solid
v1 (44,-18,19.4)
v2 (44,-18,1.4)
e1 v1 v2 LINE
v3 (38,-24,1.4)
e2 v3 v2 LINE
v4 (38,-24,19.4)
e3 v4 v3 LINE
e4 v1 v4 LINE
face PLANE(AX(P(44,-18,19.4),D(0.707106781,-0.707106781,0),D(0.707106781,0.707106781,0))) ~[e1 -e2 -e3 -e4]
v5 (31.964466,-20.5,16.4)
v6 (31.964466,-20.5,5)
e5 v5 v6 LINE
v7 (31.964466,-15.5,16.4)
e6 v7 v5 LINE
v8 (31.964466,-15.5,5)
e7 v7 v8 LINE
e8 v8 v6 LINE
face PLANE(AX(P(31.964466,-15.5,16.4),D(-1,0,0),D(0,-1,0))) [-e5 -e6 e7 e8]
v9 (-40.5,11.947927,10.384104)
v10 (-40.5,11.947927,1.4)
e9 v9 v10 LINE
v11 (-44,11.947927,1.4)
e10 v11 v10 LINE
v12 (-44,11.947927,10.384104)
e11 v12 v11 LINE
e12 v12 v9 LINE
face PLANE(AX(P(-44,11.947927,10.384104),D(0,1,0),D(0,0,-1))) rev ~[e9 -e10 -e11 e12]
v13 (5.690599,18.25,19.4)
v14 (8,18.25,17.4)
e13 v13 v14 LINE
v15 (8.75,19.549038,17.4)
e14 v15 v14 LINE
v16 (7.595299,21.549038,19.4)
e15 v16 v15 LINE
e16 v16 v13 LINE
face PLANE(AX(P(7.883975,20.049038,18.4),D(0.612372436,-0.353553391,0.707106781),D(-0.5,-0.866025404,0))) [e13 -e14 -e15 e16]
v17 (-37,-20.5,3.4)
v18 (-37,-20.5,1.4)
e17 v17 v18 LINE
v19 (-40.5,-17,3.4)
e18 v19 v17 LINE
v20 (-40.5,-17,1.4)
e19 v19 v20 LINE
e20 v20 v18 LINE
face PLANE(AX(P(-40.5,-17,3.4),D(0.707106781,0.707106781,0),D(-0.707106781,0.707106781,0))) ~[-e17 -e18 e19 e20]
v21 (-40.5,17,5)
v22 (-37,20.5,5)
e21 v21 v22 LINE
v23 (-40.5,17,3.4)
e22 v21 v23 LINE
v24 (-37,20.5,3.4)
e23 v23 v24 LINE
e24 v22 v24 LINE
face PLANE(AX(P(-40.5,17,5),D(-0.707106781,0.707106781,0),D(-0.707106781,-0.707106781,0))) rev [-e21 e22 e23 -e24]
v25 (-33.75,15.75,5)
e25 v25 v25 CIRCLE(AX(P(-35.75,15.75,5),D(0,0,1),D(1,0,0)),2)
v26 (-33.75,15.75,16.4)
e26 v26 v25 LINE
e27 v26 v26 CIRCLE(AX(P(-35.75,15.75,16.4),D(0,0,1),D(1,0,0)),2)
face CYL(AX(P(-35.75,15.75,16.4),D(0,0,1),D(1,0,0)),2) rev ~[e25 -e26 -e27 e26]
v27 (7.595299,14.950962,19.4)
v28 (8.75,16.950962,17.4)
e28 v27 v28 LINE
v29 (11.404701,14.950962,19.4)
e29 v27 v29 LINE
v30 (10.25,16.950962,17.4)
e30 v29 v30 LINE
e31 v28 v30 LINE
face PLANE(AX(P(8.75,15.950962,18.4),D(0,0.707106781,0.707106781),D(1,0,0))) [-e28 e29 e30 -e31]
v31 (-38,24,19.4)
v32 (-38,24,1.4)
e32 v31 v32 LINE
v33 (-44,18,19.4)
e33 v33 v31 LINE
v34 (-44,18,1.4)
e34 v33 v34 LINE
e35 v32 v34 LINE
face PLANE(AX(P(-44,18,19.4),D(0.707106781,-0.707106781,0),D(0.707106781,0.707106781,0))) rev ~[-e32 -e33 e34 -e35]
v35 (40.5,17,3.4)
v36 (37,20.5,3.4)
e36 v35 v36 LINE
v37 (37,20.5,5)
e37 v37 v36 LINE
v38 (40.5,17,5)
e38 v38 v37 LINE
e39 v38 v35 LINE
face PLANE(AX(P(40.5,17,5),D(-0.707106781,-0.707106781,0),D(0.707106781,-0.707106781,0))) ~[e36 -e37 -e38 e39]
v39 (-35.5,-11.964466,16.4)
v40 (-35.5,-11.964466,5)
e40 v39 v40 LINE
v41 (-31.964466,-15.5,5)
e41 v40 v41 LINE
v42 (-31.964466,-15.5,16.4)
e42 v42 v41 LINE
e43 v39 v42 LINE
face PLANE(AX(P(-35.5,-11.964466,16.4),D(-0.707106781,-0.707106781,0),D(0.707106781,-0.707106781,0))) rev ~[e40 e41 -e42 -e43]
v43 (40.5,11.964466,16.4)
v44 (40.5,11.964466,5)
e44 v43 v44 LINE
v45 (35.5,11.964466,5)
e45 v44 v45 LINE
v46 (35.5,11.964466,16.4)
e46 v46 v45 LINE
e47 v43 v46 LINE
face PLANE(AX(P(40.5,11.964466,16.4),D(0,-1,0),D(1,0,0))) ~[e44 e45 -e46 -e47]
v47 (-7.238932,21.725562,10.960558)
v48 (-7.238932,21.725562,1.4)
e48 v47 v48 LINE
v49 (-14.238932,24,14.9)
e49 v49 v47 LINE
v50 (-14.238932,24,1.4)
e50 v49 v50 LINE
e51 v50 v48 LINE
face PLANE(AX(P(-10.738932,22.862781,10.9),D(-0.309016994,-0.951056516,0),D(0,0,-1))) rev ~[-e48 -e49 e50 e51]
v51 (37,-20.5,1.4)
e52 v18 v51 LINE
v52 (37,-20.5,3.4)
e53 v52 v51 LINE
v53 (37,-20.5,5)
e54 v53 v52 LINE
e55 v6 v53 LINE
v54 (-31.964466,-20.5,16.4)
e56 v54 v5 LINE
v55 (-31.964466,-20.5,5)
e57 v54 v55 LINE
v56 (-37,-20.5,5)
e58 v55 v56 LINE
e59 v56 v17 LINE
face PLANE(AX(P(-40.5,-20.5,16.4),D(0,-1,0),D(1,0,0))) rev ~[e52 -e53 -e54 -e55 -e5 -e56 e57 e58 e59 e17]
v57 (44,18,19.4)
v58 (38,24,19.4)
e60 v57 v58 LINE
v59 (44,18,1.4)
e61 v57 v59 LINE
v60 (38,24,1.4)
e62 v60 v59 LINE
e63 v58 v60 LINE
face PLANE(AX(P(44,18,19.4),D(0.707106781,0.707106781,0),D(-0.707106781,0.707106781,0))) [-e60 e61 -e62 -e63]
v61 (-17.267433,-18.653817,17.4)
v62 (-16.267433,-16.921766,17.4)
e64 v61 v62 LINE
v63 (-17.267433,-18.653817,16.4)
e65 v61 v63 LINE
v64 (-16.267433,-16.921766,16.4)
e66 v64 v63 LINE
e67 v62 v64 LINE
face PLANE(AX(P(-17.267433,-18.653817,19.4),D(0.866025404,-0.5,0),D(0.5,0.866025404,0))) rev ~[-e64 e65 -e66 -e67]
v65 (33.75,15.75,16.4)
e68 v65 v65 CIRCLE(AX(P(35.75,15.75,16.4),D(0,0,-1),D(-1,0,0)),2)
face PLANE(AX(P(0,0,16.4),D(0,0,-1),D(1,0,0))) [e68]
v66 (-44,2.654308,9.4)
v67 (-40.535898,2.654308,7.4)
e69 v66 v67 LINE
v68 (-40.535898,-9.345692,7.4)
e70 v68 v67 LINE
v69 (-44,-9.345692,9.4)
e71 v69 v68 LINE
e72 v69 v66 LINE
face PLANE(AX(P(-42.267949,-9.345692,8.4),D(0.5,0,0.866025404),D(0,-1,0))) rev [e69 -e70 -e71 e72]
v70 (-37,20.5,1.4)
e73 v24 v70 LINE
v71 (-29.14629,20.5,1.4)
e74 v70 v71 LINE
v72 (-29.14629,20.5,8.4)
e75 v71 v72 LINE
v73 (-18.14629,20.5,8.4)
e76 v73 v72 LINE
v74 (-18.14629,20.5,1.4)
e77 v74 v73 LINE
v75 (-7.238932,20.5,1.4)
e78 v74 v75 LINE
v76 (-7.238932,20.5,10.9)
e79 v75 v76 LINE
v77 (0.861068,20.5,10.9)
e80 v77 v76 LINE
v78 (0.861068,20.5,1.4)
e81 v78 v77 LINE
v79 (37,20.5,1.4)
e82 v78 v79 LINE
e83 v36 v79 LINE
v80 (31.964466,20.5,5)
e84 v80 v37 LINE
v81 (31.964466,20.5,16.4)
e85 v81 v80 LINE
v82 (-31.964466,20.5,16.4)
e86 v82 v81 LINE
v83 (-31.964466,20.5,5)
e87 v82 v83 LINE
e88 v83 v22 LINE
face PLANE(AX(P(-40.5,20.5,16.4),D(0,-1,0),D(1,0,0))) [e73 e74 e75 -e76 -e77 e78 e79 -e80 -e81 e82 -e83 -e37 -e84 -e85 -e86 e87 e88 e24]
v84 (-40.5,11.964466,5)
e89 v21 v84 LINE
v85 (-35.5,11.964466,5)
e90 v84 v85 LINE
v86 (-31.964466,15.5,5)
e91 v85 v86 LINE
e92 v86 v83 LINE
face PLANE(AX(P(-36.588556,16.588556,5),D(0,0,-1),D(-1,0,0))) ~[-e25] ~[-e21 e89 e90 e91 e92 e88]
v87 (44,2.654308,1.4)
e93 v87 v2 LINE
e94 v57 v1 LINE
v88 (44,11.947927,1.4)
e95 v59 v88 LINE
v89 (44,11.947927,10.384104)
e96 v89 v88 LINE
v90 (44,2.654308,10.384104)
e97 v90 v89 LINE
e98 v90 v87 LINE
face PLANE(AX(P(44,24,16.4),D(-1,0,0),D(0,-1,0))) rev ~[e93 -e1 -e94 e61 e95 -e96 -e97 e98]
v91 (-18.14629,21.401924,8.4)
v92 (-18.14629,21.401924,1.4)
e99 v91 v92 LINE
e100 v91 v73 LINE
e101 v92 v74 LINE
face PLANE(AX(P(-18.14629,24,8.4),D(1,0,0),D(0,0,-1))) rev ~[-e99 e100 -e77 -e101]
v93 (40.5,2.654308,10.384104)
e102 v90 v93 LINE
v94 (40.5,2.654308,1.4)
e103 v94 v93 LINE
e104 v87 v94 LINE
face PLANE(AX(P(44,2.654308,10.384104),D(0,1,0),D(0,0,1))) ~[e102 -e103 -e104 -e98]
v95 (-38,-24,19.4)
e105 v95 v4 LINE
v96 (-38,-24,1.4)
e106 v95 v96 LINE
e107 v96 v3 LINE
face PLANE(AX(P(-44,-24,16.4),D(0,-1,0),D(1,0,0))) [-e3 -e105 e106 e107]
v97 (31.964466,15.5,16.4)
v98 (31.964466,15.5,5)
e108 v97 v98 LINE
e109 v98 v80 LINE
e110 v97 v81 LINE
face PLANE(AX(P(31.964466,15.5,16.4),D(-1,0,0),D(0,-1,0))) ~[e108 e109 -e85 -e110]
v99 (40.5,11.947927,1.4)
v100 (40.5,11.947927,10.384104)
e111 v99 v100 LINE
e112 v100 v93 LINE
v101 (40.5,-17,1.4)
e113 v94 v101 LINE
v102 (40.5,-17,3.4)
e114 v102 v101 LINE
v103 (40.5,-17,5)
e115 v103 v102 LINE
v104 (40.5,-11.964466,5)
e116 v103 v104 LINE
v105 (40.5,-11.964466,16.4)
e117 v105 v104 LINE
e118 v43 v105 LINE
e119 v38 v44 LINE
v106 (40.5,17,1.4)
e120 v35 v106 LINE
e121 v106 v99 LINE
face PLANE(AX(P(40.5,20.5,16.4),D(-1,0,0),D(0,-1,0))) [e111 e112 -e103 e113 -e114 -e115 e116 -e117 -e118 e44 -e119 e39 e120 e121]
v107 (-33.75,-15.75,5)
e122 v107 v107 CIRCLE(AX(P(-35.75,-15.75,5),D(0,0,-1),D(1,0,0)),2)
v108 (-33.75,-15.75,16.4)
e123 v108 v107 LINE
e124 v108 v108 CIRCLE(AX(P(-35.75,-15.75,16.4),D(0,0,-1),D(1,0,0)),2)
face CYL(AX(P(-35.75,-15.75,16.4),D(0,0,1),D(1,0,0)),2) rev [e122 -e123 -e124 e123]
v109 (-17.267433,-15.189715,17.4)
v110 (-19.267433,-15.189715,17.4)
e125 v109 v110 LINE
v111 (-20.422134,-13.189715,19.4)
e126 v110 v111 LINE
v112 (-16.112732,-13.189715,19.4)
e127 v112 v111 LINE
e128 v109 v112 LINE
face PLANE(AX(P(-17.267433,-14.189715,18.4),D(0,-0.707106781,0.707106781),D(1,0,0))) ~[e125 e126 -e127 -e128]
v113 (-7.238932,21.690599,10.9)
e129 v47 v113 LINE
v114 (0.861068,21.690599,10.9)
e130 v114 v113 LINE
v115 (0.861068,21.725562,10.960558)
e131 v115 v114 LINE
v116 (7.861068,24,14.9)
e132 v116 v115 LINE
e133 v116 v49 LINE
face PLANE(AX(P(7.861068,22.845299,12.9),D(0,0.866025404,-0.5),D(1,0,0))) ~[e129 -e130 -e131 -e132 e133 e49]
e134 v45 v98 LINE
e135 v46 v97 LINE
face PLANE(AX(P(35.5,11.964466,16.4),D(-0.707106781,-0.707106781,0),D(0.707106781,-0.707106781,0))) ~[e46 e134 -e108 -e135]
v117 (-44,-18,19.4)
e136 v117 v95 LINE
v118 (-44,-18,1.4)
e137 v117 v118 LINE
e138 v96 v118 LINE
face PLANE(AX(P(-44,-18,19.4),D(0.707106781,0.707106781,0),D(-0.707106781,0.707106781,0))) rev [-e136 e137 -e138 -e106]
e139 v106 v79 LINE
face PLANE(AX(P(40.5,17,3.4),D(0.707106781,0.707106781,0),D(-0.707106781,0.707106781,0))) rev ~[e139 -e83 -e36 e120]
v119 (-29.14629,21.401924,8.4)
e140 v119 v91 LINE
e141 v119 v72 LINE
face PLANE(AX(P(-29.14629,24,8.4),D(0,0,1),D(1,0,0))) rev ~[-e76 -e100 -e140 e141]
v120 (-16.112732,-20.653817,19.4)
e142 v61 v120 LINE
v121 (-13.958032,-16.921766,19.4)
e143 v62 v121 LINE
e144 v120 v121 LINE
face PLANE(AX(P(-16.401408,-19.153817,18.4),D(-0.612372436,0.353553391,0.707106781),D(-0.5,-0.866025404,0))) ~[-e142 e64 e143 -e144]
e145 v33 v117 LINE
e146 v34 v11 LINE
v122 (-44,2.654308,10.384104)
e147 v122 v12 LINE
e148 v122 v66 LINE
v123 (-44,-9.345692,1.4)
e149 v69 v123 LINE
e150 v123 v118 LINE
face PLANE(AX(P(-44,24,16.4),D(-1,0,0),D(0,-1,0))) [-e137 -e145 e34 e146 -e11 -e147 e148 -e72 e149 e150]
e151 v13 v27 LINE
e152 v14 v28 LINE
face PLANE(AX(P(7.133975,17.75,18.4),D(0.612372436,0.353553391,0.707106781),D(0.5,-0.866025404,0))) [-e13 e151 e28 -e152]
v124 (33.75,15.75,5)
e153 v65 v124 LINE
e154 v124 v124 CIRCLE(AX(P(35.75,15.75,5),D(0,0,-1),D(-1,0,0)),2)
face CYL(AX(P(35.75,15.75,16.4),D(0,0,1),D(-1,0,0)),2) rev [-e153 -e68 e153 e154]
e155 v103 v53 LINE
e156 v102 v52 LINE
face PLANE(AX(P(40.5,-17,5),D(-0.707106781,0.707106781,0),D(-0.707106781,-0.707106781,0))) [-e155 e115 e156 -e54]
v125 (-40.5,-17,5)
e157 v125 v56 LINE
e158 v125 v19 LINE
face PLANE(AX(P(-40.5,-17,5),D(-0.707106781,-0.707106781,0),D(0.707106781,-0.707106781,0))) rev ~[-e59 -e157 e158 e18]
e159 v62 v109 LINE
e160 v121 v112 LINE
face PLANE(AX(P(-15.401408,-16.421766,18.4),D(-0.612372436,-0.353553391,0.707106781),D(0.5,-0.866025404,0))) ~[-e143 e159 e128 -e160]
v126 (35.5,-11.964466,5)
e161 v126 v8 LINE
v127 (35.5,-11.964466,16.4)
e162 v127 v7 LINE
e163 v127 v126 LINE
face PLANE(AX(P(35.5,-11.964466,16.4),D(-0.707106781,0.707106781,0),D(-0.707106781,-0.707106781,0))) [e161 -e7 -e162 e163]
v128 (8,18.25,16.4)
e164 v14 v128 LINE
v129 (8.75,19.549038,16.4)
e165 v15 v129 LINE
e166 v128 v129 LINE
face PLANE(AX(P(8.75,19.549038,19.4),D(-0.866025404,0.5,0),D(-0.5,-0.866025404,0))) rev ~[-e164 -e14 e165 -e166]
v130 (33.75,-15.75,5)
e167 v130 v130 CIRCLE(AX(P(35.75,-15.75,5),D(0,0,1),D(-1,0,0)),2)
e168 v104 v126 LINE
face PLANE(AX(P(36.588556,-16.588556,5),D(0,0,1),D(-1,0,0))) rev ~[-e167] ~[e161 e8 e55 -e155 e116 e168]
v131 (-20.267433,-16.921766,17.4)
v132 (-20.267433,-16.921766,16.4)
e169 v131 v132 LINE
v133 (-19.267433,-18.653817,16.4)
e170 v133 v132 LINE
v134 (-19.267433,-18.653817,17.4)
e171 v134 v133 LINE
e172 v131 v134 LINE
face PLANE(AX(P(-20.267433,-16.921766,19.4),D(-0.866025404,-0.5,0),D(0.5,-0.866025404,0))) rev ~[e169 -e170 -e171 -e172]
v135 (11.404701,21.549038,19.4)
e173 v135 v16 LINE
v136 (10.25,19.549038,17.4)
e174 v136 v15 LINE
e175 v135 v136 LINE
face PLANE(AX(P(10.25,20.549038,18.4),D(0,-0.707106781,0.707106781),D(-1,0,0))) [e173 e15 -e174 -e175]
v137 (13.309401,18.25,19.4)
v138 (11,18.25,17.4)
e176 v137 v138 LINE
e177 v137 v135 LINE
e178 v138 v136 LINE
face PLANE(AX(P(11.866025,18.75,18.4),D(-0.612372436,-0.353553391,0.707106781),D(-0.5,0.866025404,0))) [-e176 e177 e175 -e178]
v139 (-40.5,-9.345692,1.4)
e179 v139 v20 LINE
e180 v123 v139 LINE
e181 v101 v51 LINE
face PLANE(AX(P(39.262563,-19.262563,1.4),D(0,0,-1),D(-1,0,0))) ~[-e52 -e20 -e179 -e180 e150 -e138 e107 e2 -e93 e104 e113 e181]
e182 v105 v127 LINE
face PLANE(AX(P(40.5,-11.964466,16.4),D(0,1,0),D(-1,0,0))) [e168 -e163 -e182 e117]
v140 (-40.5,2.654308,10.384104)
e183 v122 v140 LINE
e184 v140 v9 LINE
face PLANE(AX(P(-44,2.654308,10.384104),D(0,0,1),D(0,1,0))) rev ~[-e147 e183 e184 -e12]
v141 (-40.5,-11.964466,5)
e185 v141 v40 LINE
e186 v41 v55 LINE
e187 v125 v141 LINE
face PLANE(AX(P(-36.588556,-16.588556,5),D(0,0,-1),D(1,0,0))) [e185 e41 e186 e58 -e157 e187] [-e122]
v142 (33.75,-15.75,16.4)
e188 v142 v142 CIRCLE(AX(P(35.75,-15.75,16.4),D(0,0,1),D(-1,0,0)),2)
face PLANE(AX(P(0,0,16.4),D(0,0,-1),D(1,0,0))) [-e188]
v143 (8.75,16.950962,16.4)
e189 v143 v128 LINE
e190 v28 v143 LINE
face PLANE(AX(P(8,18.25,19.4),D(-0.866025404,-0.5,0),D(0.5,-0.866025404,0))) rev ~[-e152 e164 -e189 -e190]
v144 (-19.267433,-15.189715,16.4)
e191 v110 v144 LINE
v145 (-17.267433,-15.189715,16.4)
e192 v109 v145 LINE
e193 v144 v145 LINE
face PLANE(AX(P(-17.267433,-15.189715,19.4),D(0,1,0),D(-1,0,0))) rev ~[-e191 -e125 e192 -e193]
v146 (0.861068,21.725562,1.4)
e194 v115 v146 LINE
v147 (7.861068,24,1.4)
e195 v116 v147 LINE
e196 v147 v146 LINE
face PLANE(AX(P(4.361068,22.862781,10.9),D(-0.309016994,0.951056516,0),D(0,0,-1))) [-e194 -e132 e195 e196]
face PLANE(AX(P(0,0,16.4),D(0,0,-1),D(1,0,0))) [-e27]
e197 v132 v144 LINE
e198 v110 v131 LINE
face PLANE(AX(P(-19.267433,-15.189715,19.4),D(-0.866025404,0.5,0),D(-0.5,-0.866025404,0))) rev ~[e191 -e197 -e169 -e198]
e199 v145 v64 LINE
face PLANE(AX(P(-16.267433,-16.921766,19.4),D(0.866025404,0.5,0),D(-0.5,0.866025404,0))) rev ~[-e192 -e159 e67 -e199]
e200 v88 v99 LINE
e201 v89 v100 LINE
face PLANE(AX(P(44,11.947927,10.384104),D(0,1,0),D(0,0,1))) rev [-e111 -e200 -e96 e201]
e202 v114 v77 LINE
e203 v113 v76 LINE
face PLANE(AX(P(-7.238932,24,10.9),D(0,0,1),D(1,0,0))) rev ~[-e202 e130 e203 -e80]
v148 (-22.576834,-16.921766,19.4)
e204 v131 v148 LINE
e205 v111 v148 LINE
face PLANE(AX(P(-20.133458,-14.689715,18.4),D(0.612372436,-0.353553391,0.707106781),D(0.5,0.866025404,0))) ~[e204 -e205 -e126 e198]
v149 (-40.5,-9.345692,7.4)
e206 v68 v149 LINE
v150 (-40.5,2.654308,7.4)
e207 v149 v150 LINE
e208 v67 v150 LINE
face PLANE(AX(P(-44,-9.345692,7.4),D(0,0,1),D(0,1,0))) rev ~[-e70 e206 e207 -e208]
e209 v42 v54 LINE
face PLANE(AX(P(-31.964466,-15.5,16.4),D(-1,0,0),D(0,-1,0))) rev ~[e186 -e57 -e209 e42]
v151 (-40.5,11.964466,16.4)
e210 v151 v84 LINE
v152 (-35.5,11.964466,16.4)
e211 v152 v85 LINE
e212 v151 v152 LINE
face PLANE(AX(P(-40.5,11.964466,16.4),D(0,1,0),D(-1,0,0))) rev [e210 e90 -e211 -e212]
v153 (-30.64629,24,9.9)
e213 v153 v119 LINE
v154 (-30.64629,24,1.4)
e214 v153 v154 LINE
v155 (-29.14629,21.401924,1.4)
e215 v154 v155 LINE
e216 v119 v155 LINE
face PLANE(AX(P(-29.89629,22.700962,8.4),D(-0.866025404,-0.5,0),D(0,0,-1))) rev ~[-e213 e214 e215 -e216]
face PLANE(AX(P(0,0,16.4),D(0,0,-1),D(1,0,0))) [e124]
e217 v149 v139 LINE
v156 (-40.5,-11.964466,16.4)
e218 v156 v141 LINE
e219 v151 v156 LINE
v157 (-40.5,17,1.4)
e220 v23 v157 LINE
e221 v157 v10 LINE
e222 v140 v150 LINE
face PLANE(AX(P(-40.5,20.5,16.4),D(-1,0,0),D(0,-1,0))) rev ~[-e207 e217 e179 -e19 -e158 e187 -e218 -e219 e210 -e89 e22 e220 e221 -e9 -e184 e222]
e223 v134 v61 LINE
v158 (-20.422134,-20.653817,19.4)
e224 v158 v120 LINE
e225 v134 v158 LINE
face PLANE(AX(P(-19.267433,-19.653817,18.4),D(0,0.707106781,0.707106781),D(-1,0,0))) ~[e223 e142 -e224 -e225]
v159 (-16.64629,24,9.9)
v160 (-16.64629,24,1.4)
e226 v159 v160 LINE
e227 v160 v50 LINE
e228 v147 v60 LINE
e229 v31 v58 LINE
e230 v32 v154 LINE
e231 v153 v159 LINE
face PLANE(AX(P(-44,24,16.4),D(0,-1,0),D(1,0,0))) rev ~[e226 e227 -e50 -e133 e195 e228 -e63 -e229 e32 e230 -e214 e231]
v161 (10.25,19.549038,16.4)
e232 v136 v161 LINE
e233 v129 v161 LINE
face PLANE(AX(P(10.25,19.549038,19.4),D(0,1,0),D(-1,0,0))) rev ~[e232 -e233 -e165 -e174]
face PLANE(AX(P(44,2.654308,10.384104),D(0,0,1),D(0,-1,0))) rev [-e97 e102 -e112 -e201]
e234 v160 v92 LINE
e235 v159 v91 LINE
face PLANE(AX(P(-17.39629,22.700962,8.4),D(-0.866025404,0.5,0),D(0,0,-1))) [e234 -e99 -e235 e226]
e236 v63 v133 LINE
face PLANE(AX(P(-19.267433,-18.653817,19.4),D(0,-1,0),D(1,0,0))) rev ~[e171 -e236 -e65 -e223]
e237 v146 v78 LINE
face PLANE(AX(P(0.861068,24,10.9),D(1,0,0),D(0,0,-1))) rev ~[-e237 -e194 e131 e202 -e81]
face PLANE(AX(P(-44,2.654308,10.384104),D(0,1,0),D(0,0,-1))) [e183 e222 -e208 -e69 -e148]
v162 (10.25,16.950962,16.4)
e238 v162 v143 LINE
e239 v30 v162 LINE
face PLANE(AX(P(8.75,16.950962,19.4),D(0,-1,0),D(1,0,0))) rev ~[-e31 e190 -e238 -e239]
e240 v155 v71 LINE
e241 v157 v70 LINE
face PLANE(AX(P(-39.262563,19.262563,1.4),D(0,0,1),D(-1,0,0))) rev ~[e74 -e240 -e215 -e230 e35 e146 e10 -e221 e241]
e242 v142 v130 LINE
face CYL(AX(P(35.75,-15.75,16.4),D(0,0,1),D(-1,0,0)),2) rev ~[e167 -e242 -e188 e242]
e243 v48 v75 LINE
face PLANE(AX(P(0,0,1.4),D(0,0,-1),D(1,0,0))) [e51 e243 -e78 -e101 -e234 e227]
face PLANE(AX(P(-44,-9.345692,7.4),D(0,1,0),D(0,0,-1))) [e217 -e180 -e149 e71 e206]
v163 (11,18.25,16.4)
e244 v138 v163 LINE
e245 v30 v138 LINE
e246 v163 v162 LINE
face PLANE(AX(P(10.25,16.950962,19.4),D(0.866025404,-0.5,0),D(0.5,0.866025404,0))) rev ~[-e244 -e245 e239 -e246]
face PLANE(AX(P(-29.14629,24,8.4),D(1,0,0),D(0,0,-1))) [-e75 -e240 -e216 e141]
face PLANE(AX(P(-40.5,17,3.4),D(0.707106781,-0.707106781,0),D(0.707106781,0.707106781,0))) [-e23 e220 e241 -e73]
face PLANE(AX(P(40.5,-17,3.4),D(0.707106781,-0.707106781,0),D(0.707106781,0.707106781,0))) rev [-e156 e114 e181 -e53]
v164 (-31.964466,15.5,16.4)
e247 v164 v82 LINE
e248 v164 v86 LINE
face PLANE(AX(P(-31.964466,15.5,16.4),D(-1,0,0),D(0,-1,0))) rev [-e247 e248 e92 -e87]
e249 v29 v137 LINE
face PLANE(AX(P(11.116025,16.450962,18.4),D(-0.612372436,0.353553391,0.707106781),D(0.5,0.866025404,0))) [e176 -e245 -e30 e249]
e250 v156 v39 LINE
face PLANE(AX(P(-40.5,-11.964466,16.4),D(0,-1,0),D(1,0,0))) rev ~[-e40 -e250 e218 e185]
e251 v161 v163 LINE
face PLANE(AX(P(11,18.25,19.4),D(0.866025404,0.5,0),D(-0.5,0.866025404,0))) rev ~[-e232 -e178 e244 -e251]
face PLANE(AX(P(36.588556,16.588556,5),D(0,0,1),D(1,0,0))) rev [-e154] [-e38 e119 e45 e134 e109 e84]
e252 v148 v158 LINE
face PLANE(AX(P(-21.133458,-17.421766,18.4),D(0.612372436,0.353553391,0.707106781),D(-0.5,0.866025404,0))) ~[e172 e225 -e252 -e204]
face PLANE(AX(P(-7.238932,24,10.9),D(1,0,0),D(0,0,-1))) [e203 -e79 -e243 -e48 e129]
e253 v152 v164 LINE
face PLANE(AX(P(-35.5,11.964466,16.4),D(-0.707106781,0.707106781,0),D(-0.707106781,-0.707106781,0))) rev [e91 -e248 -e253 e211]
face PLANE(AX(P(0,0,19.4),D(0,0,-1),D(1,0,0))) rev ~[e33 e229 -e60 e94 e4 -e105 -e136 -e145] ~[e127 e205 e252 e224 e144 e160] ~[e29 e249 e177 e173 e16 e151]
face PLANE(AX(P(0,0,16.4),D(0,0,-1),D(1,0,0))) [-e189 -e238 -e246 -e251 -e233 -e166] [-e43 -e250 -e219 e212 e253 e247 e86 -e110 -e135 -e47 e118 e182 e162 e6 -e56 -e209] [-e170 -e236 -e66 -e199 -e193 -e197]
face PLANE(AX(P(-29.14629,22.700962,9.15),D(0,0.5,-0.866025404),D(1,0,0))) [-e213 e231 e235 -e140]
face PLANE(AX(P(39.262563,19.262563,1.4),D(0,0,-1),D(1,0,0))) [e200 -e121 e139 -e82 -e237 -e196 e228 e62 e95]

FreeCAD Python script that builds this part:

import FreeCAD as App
import Part
import Sketcher
from FreeCAD import Vector
Q = App.Units.Quantity


def edges_at(feature, points):
    """Names of the edges that pass closest to the given points."""
    edges = feature.Shape.Edges
    near = lambda p: min(range(len(edges)), key=lambda i: edges[i].distToShape(Part.Vertex(*p))[0])
    return sorted({f"Edge{near(p) + 1}" for p in points})

doc = App.newDocument("Part")
body = doc.addObject("PartDesign::Body", "Body")

# Sketch on XY plane
sketch1 = body.newObject("Sketcher::SketchObject", "Sketch")
sketch1.AttachmentSupport = (doc.getObject("XY_Plane"), [""])
sketch1.MapMode = "FlatFace"
sketch1.addGeometry(Part.LineSegment(Vector(-44, 24, 0), Vector(-44, -24, 0)), False)
sketch1.addGeometry(Part.LineSegment(Vector(-44, -24, 0), Vector(44, -24, 0)), False)
sketch1.addGeometry(Part.LineSegment(Vector(44, -24, 0), Vector(44, 24, 0)), False)
sketch1.addGeometry(Part.LineSegment(Vector(44, 24, 0), Vector(-44, 24, 0)), False)
sketch1.addConstraint(Sketcher.Constraint("Coincident", 0, 2, 1, 1))
sketch1.addConstraint(Sketcher.Constraint("Coincident", 1, 2, 2, 1))
sketch1.addConstraint(Sketcher.Constraint("Coincident", 2, 2, 3, 1))
sketch1.addConstraint(Sketcher.Constraint("Coincident", 3, 2, 0, 1))
sketch1.addConstraint(Sketcher.Constraint("Vertical", 0))
sketch1.addConstraint(Sketcher.Constraint("Horizontal", 1))
sketch1.addConstraint(Sketcher.Constraint("Vertical", 2))
sketch1.addConstraint(Sketcher.Constraint("Horizontal", 3))
sketch1.addConstraint(Sketcher.Constraint("Symmetric", 0, 2, 2, 2, -1, 1))
sketch1.addConstraint(Sketcher.Constraint("DistanceX", 1, 1, 1, 2, 88.0))
sketch1.addConstraint(Sketcher.Constraint("DistanceY", 0, 2, 0, 1, 48.0))
pad1 = body.newObject("PartDesign::Pad", "Pad")
pad1.Profile = sketch1
pad1.Length = 3

# Sketch on XY plane
sketch2 = body.newObject("Sketcher::SketchObject", "Sketch001")
sketch2.AttachmentSupport = (doc.getObject("XY_Plane"), [""])
sketch2.MapMode = "FlatFace"
sketch2.AttachmentOffset = App.Placement(Vector(0, 0, 3), App.Rotation())
sketch2.addGeometry(Part.LineSegment(Vector(-44, 24, 0), Vector(-44, -24, 0)), False)
sketch2.addGeometry(Part.LineSegment(Vector(-44, -24, 0), Vector(44, -24, 0)), False)
sketch2.addGeometry(Part.LineSegment(Vector(44, -24, 0), Vector(44, 24, 0)), False)
sketch2.addGeometry(Part.LineSegment(Vector(44, 24, 0), Vector(-44, 24, 0)), False)
sketch2.addGeometry(Part.LineSegment(Vector(40, -20, 0), Vector(-40, -20, 0)), False)
sketch2.addGeometry(Part.LineSegment(Vector(-40, -20, 0), Vector(-40, 20, 0)), False)
sketch2.addGeometry(Part.LineSegment(Vector(-40, 20, 0), Vector(40, 20, 0)), False)
sketch2.addGeometry(Part.LineSegment(Vector(40, 20, 0), Vector(40, -20, 0)), False)
sketch2.addConstraint(Sketcher.Constraint("Coincident", 0, 2, 1, 1))
sketch2.addConstraint(Sketcher.Constraint("Coincident", 1, 2, 2, 1))
sketch2.addConstraint(Sketcher.Constraint("Coincident", 2, 2, 3, 1))
sketch2.addConstraint(Sketcher.Constraint("Coincident", 3, 2, 0, 1))
sketch2.addConstraint(Sketcher.Constraint("Coincident", 4, 2, 5, 1))
sketch2.addConstraint(Sketcher.Constraint("Coincident", 5, 2, 6, 1))
sketch2.addConstraint(Sketcher.Constraint("Coincident", 6, 2, 7, 1))
sketch2.addConstraint(Sketcher.Constraint("Coincident", 7, 2, 4, 1))
sketch2.addConstraint(Sketcher.Constraint("Vertical", 0))
sketch2.addConstraint(Sketcher.Constraint("Horizontal", 1))
sketch2.addConstraint(Sketcher.Constraint("Vertical", 2))
sketch2.addConstraint(Sketcher.Constraint("Horizontal", 3))
sketch2.addConstraint(Sketcher.Constraint("Horizontal", 4))
sketch2.addConstraint(Sketcher.Constraint("Vertical", 5))
sketch2.addConstraint(Sketcher.Constraint("Horizontal", 6))
sketch2.addConstraint(Sketcher.Constraint("Vertical", 7))
sketch2.addConstraint(Sketcher.Constraint("Symmetric", 0, 2, 2, 2, -1, 1))
sketch2.addConstraint(Sketcher.Constraint("Symmetric", 4, 2, 6, 2, -1, 1))
sketch2.addConstraint(Sketcher.Constraint("DistanceX", 1, 1, 1, 2, 88.0))
sketch2.addConstraint(Sketcher.Constraint("DistanceX", 4, 2, 4, 1, 81.0))
sketch2.addConstraint(Sketcher.Constraint("DistanceY", 0, 2, 0, 1, 48.0))
sketch2.addConstraint(Sketcher.Constraint("DistanceY", 5, 1, 5, 2, 41.0))
pad2 = body.newObject("PartDesign::Pad", "Pad001")
pad2.Profile = sketch2
pad2.Length = 15

# Sketch on XY plane
sketch3 = body.newObject("Sketcher::SketchObject", "Sketch002")
sketch3.AttachmentSupport = (doc.getObject("XY_Plane"), [""])
sketch3.MapMode = "FlatFace"
sketch3.AttachmentOffset = App.Placement(Vector(0, 0, 3), App.Rotation())
sketch3.addGeometry(Part.LineSegment(Vector(-32, 15.5, 0), Vector(-32, 20.5, 0)), False)
sketch3.addGeometry(Part.LineSegment(Vector(-32, 20.5, 0), Vector(-40.5, 20.5, 0)), False)
sketch3.addGeometry(Part.LineSegment(Vector(-40.5, 20.5, 0), Vector(-40.5, 12, 0)), False)
sketch3.addGeometry(Part.LineSegment(Vector(-40.5, 12, 0), Vector(-35.5, 12, 0)), False)
sketch3.addGeometry(Part.LineSegment(Vector(-35.5, 12, 0), Vector(-32, 15.5, 0)), False)
sketch3.addGeometry(Part.Circle(Vector(-35.8, 15.8, 0), Vector(0, 0, 1), 2), False)
sketch3.addConstraint(Sketcher.Constraint("Coincident", 0, 2, 1, 1))
sketch3.addConstraint(Sketcher.Constraint("Coincident", 1, 2, 2, 1))
sketch3.addConstraint(Sketcher.Constraint("Coincident", 2, 2, 3, 1))
sketch3.addConstraint(Sketcher.Constraint("Coincident", 3, 2, 4, 1))
sketch3.addConstraint(Sketcher.Constraint("Coincident", 4, 2, 0, 1))
sketch3.addConstraint(Sketcher.Constraint("Vertical", 0))
sketch3.addConstraint(Sketcher.Constraint("Horizontal", 1))
sketch3.addConstraint(Sketcher.Constraint("Vertical", 2))
sketch3.addConstraint(Sketcher.Constraint("Horizontal", 3))
sketch3.addConstraint(Sketcher.Constraint("Equal", 3, 0))
sketch3.addConstraint(Sketcher.Constraint("Equal", 1, 2))
sketch3.addConstraint(Sketcher.Constraint("Diameter", 5, 4.0))
sketch3.addConstraint(Sketcher.Constraint("DistanceX", 3, 1, 3, 2, 5.0))
sketch3.addConstraint(Sketcher.Constraint("Distance", 4, 5.0))
sketch3.addConstraint(Sketcher.Constraint("DistanceY", -1, 1, 0, 2, 20.5))
sketch3.addConstraint(Sketcher.Constraint("DistanceX", 1, 2, -1, 1, 40.5))
sketch3.addConstraint(Sketcher.Constraint("DistanceX", 5, 3, -1, 1, 35.75))
sketch3.addConstraint(Sketcher.Constraint("DistanceY", -1, 1, 5, 3, 15.75))
pad3 = body.newObject("PartDesign::Pad", "Pad002")
pad3.Profile = sketch3
pad3.Length = 11.4

# Sketch on XY plane
sketch4 = body.newObject("Sketcher::SketchObject", "Sketch003")
sketch4.AttachmentSupport = (doc.getObject("XY_Plane"), [""])
sketch4.MapMode = "FlatFace"
sketch4.AttachmentOffset = App.Placement(Vector(0, 0, 3), App.Rotation())
sketch4.addGeometry(Part.LineSegment(Vector(32, 15.5, 0), Vector(32, 20.5, 0)), False)
sketch4.addGeometry(Part.LineSegment(Vector(32, 20.5, 0), Vector(40.5, 20.5, 0)), False)
sketch4.addGeometry(Part.LineSegment(Vector(40.5, 20.5, 0), Vector(40.5, 12, 0)), False)
sketch4.addGeometry(Part.LineSegment(Vector(40.5, 12, 0), Vector(35.5, 12, 0)), False)
sketch4.addGeometry(Part.LineSegment(Vector(35.5, 12, 0), Vector(32, 15.5, 0)), False)
sketch4.addGeometry(Part.Circle(Vector(35.8, 15.8, 0), Vector(0, 0, 1), 2), False)
sketch4.addConstraint(Sketcher.Constraint("Coincident", 0, 2, 1, 1))
sketch4.addConstraint(Sketcher.Constraint("Coincident", 1, 2, 2, 1))
sketch4.addConstraint(Sketcher.Constraint("Coincident", 2, 2, 3, 1))
sketch4.addConstraint(Sketcher.Constraint("Coincident", 3, 2, 4, 1))
sketch4.addConstraint(Sketcher.Constraint("Coincident", 4, 2, 0, 1))
sketch4.addConstraint(Sketcher.Constraint("Vertical", 0))
sketch4.addConstraint(Sketcher.Constraint("Horizontal", 1))
sketch4.addConstraint(Sketcher.Constraint("Vertical", 2))
sketch4.addConstraint(Sketcher.Constraint("Horizontal", 3))
sketch4.addConstraint(Sketcher.Constraint("Equal", 3, 0))
sketch4.addConstraint(Sketcher.Constraint("Equal", 1, 2))
sketch4.addConstraint(Sketcher.Constraint("Diameter", 5, 4.0))
sketch4.addConstraint(Sketcher.Constraint("DistanceX", 3, 2, 3, 1, 5.0))
sketch4.addConstraint(Sketcher.Constraint("Distance", 4, 5.0))
sketch4.addConstraint(Sketcher.Constraint("DistanceY", -1, 1, 0, 2, 20.5))
sketch4.addConstraint(Sketcher.Constraint("DistanceX", -1, 1, 1, 2, 40.5))
sketch4.addConstraint(Sketcher.Constraint("DistanceX", -1, 1, 5, 3, 35.75))
sketch4.addConstraint(Sketcher.Constraint("DistanceY", -1, 1, 5, 3, 15.75))
pad4 = body.newObject("PartDesign::Pad", "Pad003")
pad4.Profile = sketch4
pad4.Length = 11.4
doc.recompute()

mirrored = body.newObject("PartDesign::Mirrored", "Mirrored")
mirrored.Originals = [pad3, pad4]
mirrored.MirrorPlane = (doc.getObject("XZ_Plane"), [""])
body.Tip = mirrored

# Sketch on YZ plane
sketch5 = body.newObject("Sketcher::SketchObject", "Sketch004")
sketch5.AttachmentSupport = (doc.getObject("YZ_Plane"), [""])
sketch5.MapMode = "FlatFace"
sketch5.AttachmentOffset = App.Placement(Vector(0, 0, -44), App.Rotation())
sketch5.addGeometry(Part.LineSegment(Vector(-3, 18, 0), Vector(-3, 9, 0)), False)
sketch5.addGeometry(Part.LineSegment(Vector(-3, 9, 0), Vector(-12, 9, 0)), False)
sketch5.addGeometry(Part.LineSegment(Vector(-12, 9, 0), Vector(-12, 18, 0)), False)
sketch5.addGeometry(Part.LineSegment(Vector(-12, 18, 0), Vector(-3, 18, 0)), False)
sketch5.addConstraint(Sketcher.Constraint("Coincident", 0, 2, 1, 1))
sketch5.addConstraint(Sketcher.Constraint("Coincident", 1, 2, 2, 1))
sketch5.addConstraint(Sketcher.Constraint("Coincident", 2, 2, 3, 1))
sketch5.addConstraint(Sketcher.Constraint("Coincident", 3, 2, 0, 1))
sketch5.addConstraint(Sketcher.Constraint("Vertical", 0))
sketch5.addConstraint(Sketcher.Constraint("Horizontal", 1))
sketch5.addConstraint(Sketcher.Constraint("Vertical", 2))
sketch5.addConstraint(Sketcher.Constraint("Horizontal", 3))
sketch5.addConstraint(Sketcher.Constraint("DistanceY", -1, 1, 2, 2, 18.0))
sketch5.addConstraint(Sketcher.Constraint("DistanceX", 1, 2, 1, 1, 9.293619))
sketch5.addConstraint(Sketcher.Constraint("DistanceY", 0, 2, 0, 1, 8.984104))
sketch5.addConstraint(Sketcher.Constraint("DistanceX", 0, 2, -1, 1, 2.654308))
pocket1 = body.newObject("PartDesign::Pocket", "Pocket")
pocket1.Profile = sketch5
pocket1.Length = 5
pocket1.Reversed = True
doc.recompute()

mirrored2 = body.newObject("PartDesign::Mirrored", "Mirrored001")
mirrored2.Originals = [pocket1]
mirrored2.MirrorPlane = (doc.getObject("YZ_Plane"), [""])
body.Tip = mirrored2

# Sketch on XZ plane
sketch6 = body.newObject("Sketcher::SketchObject", "Sketch005")
sketch6.AttachmentSupport = (doc.getObject("XZ_Plane"), [""])
sketch6.MapMode = "FlatFace"
sketch6.AttachmentOffset = App.Placement(Vector(0, 0, 24), App.Rotation())
sketch6.addGeometry(Part.LineSegment(Vector(-7, 18, 0), Vector(-7, 8, 0)), False)
sketch6.addGeometry(Part.LineSegment(Vector(-7, 8, 0), Vector(1, 8, 0)), False)
sketch6.addGeometry(Part.LineSegment(Vector(1, 8, 0), Vector(1, 18, 0)), False)
sketch6.addGeometry(Part.LineSegment(Vector(1, 18, 0), Vector(-7, 18, 0)), False)
sketch6.addConstraint(Sketcher.Constraint("Coincident", 0, 2, 1, 1))
sketch6.addConstraint(Sketcher.Constraint("Coincident", 1, 2, 2, 1))
sketch6.addConstraint(Sketcher.Constraint("Coincident", 2, 2, 3, 1))
sketch6.addConstraint(Sketcher.Constraint("Coincident", 3, 2, 0, 1))
sketch6.addConstraint(Sketcher.Constraint("Vertical", 0))
sketch6.addConstraint(Sketcher.Constraint("Horizontal", 1))
sketch6.addConstraint(Sketcher.Constraint("Vertical", 2))
sketch6.addConstraint(Sketcher.Constraint("Horizontal", 3))
sketch6.addConstraint(Sketcher.Constraint("DistanceX", 1, 1, 1, 2, 8.1))
sketch6.addConstraint(Sketcher.Constraint("DistanceY", 0, 2, 0, 1, 9.5))
sketch6.addConstraint(Sketcher.Constraint("DistanceY", -1, 1, 2, 2, 18.0))
sketch6.addConstraint(Sketcher.Constraint("DistanceX", 0, 2, -1, 1, 7.238932))
pocket2 = body.newObject("PartDesign::Pocket", "Pocket001")
pocket2.Profile = sketch6
pocket2.Length = 5
doc.recompute()

chamfer = body.newObject("PartDesign::Chamfer", "Chamfer")
chamfer.Base = (pocket2, edges_at(pocket2, [(0.861, -24, 13.25), (-7.239, -24, 13.25)]))
chamfer.ChamferType = "Distance and Angle"
chamfer.Size = 7
chamfer.Angle = 18
doc.recompute()

chamfer2 = body.newObject("PartDesign::Chamfer", "Chamfer001")
chamfer2.Base = (chamfer, edges_at(chamfer, [(-3.189, -24, 8.5), (-3.189, -24, 8.5), (-3.189, -24, 8.5)]))
chamfer2.ChamferType = "Distance and Angle"
chamfer2.Size = 4
chamfer2.Angle = 30

# Sketch on XZ plane
sketch7 = body.newObject("Sketcher::SketchObject", "Sketch006")
sketch7.AttachmentSupport = (doc.getObject("XZ_Plane"), [""])
sketch7.MapMode = "FlatFace"
sketch7.AttachmentOffset = App.Placement(Vector(0, 0, 24), App.Rotation())
sketch7.addGeometry(Part.LineSegment(Vector(-29, 18, 0), Vector(-29, 11, 0)), False)
sketch7.addGeometry(Part.LineSegment(Vector(-29, 11, 0), Vector(-18, 11, 0)), False)
sketch7.addGeometry(Part.LineSegment(Vector(-18, 11, 0), Vector(-18, 18, 0)), False)
sketch7.addGeometry(Part.LineSegment(Vector(-18, 18, 0), Vector(-29, 18, 0)), False)
sketch7.addConstraint(Sketcher.Constraint("Coincident", 0, 2, 1, 1))
sketch7.addConstraint(Sketcher.Constraint("Coincident", 1, 2, 2, 1))
sketch7.addConstraint(Sketcher.Constraint("Coincident", 2, 2, 3, 1))
sketch7.addConstraint(Sketcher.Constraint("Coincident", 3, 2, 0, 1))
sketch7.addConstraint(Sketcher.Constraint("Vertical", 0))
sketch7.addConstraint(Sketcher.Constraint("Horizontal", 1))
sketch7.addConstraint(Sketcher.Constraint("Vertical", 2))
sketch7.addConstraint(Sketcher.Constraint("Horizontal", 3))
sketch7.addConstraint(Sketcher.Constraint("DistanceX", 1, 1, 1, 2, 11.0))
sketch7.addConstraint(Sketcher.Constraint("DistanceY", 0, 2, 0, 1, 7.0))
sketch7.addConstraint(Sketcher.Constraint("DistanceY", -1, 1, 0, 2, 11.0))
sketch7.addConstraint(Sketcher.Constraint("DistanceX", 0, 2, -1, 1, 29.14629))
pocket3 = body.newObject("PartDesign::Pocket", "Pocket002")
pocket3.Profile = sketch7
pocket3.Length = 5
doc.recompute()

chamfer3 = body.newObject("PartDesign::Chamfer", "Chamfer002")
chamfer3.Base = (pocket3, edges_at(pocket3, [(-23.646, -24, 11), (-18.146, -24, 14.5), (-29.146, -24, 14.5)]))
chamfer3.ChamferType = "Distance and Angle"
chamfer3.Size = 1.5
chamfer3.Angle = 60

# Sketch on XY plane
sketch8 = body.newObject("Sketcher::SketchObject", "Sketch007")
sketch8.AttachmentSupport = (doc.getObject("XY_Plane"), [""])
sketch8.MapMode = "FlatFace"
sketch8.AttachmentOffset = App.Placement(Vector(0, 0, 14.4), App.Rotation())
sketch8.addGeometry(Part.LineSegment(Vector(-40.5, 20.5, 0), Vector(-40.5, 17, 0)), False)
sketch8.addGeometry(Part.LineSegment(Vector(-40.5, 17, 0), Vector(-37, 20.5, 0)), False)
sketch8.addGeometry(Part.LineSegment(Vector(-37, 20.5, 0), Vector(-40.5, 20.5, 0)), False)
sketch8.addConstraint(Sketcher.Constraint("Coincident", 0, 2, 1, 1))
sketch8.addConstraint(Sketcher.Constraint("Coincident", 1, 2, 2, 1))
sketch8.addConstraint(Sketcher.Constraint("Coincident", 2, 2, 0, 1))
sketch8.addConstraint(Sketcher.Constraint("Vertical", 0))
sketch8.addConstraint(Sketcher.Constraint("Horizontal", 2))
sketch8.addConstraint(Sketcher.Constraint("Equal", 2, 0))
sketch8.addConstraint(Sketcher.Constraint("DistanceX", 2, 2, 2, 1, 3.5))
sketch8.addConstraint(Sketcher.Constraint("DistanceY", -1, 1, 0, 2, 17.0))
sketch8.addConstraint(Sketcher.Constraint("DistanceX", 1, 2, -1, 1, 37.0))
pad5 = body.newObject("PartDesign::Pad", "Pad004")
pad5.Profile = sketch8
pad5.Length = 1.6

# Sketch on XY plane
sketch9 = body.newObject("Sketcher::SketchObject", "Sketch008")
sketch9.AttachmentSupport = (doc.getObject("XY_Plane"), [""])
sketch9.MapMode = "FlatFace"
sketch9.AttachmentOffset = App.Placement(Vector(0, 0, 14.4), App.Rotation())
sketch9.addGeometry(Part.LineSegment(Vector(40.5, 20.5, 0), Vector(40.5, 17, 0)), False)
sketch9.addGeometry(Part.LineSegment(Vector(40.5, 17, 0), Vector(37, 20.5, 0)), False)
sketch9.addGeometry(Part.LineSegment(Vector(37, 20.5, 0), Vector(40.5, 20.5, 0)), False)
sketch9.addConstraint(Sketcher.Constraint("Coincident", 0, 2, 1, 1))
sketch9.addConstraint(Sketcher.Constraint("Coincident", 1, 2, 2, 1))
sketch9.addConstraint(Sketcher.Constraint("Coincident", 2, 2, 0, 1))
sketch9.addConstraint(Sketcher.Constraint("Vertical", 0))
sketch9.addConstraint(Sketcher.Constraint("Horizontal", 2))
sketch9.addConstraint(Sketcher.Constraint("Equal", 2, 0))
sketch9.addConstraint(Sketcher.Constraint("DistanceX", 2, 1, 2, 2, 3.5))
sketch9.addConstraint(Sketcher.Constraint("DistanceY", -1, 1, 0, 2, 17.0))
sketch9.addConstraint(Sketcher.Constraint("DistanceX", -1, 1, 1, 2, 37.0))
pad6 = body.newObject("PartDesign::Pad", "Pad005")
pad6.Profile = sketch9
pad6.Length = 1.6
doc.recompute()

mirrored3 = body.newObject("PartDesign::Mirrored", "Mirrored002")
mirrored3.Originals = [pad5, pad6]
mirrored3.MirrorPlane = (doc.getObject("XZ_Plane"), [""])
body.Tip = mirrored3

# Sketch on XY plane
sketch10 = body.newObject("Sketcher::SketchObject", "Sketch009")
sketch10.AttachmentSupport = (doc.getObject("XY_Plane"), [""])
sketch10.MapMode = "FlatFace"
sketch10.addGeometry(Part.LineSegment(Vector(-16.3, 16.9, 0), Vector(-17.3, 15.2, 0)), False)
sketch10.addGeometry(Part.LineSegment(Vector(-17.3, 15.2, 0), Vector(-19.3, 15.2, 0)), False)
sketch10.addGeometry(Part.LineSegment(Vector(-19.3, 15.2, 0), Vector(-20.3, 16.9, 0)), False)
sketch10.addGeometry(Part.LineSegment(Vector(-20.3, 16.9, 0), Vector(-19.3, 18.7, 0)), False)
sketch10.addGeometry(Part.LineSegment(Vector(-19.3, 18.7, 0), Vector(-17.3, 18.7, 0)), False)
sketch10.addGeometry(Part.LineSegment(Vector(-17.3, 18.7, 0), Vector(-16.3, 16.9, 0)), False)
sketch10.addConstraint(Sketcher.Constraint("Coincident", 0, 2, 1, 1))
sketch10.addConstraint(Sketcher.Constraint("Coincident", 1, 2, 2, 1))
sketch10.addConstraint(Sketcher.Constraint("Coincident", 2, 2, 3, 1))
sketch10.addConstraint(Sketcher.Constraint("Coincident", 3, 2, 4, 1))
sketch10.addConstraint(Sketcher.Constraint("Coincident", 4, 2, 5, 1))
sketch10.addConstraint(Sketcher.Constraint("Coincident", 5, 2, 0, 1))
sketch10.addConstraint(Sketcher.Constraint("Horizontal", 1))
sketch10.addConstraint(Sketcher.Constraint("Horizontal", 4))
sketch10.addConstraint(Sketcher.Constraint("Parallel", 0, 3))
sketch10.addConstraint(Sketcher.Constraint("Parallel", 2, 5))
sketch10.addConstraint(Sketcher.Constraint("Horizontal", 2, 2, 5, 2))
sketch10.addConstraint(Sketcher.Constraint("Vertical", 1, 2, 3, 2))
sketch10.addConstraint(Sketcher.Constraint("Vertical", 0, 2, 4, 2))
sketch10.addConstraint(Sketcher.Constraint("DistanceX", 1, 2, 1, 1, 2.0))
sketch10.addConstraint(Sketcher.Constraint("Angle", 0, Q("-120 deg")))
sketch10.addConstraint(Sketcher.Constraint("Distance", 0, 2.0))
sketch10.addConstraint(Sketcher.Constraint("DistanceX", 0, 2, -1, 1, 17.267433))
sketch10.addConstraint(Sketcher.Constraint("DistanceY", -1, 1, 0, 2, 15.189715))
pocket4 = body.newObject("PartDesign::Pocket", "Pocket003")
pocket4.Profile = sketch10
pocket4.Length = 5
pocket4.Reversed = True
doc.recompute()

chamfer4 = body.newObject("PartDesign::Chamfer", "Chamfer003")
chamfer4.Base = (pocket4, edges_at(pocket4, [
    (-18.267, 15.19, 0),
    (-16.767, 16.056, 0),
    (-16.767, 17.788, 0),
    (-18.267, 18.654, 0),
    (-19.767, 17.788, 0),
    (-19.767, 16.056, 0),
]))
chamfer4.Size = 2

# Sketch on XY plane
sketch11 = body.newObject("Sketcher::SketchObject", "Sketch010")
sketch11.AttachmentSupport = (doc.getObject("XY_Plane"), [""])
sketch11.MapMode = "FlatFace"
sketch11.addGeometry(Part.LineSegment(Vector(11, -18.2, 0), Vector(10.2, -19.5, 0)), False)
sketch11.addGeometry(Part.LineSegment(Vector(10.2, -19.5, 0), Vector(8.8, -19.5, 0)), False)
sketch11.addGeometry(Part.LineSegment(Vector(8.8, -19.5, 0), Vector(8, -18.2, 0)), False)
sketch11.addGeometry(Part.LineSegment(Vector(8, -18.2, 0), Vector(8.8, -17, 0)), False)
sketch11.addGeometry(Part.LineSegment(Vector(8.8, -17, 0), Vector(10.2, -17, 0)), False)
sketch11.addGeometry(Part.LineSegment(Vector(10.2, -17, 0), Vector(11, -18.2, 0)), False)
sketch11.addConstraint(Sketcher.Constraint("Coincident", 0, 2, 1, 1))
sketch11.addConstraint(Sketcher.Constraint("Coincident", 1, 2, 2, 1))
sketch11.addConstraint(Sketcher.Constraint("Coincident", 2, 2, 3, 1))
sketch11.addConstraint(Sketcher.Constraint("Coincident", 3, 2, 4, 1))
sketch11.addConstraint(Sketcher.Constraint("Coincident", 4, 2, 5, 1))
sketch11.addConstraint(Sketcher.Constraint("Coincident", 5, 2, 0, 1))
sketch11.addConstraint(Sketcher.Constraint("Horizontal", 1))
sketch11.addConstraint(Sketcher.Constraint("Horizontal", 4))
sketch11.addConstraint(Sketcher.Constraint("Parallel", 0, 3))
sketch11.addConstraint(Sketcher.Constraint("Parallel", 2, 5))
sketch11.addConstraint(Sketcher.Constraint("Horizontal", 2, 2, 5, 2))
sketch11.addConstraint(Sketcher.Constraint("Vertical", 1, 2, 3, 2))
sketch11.addConstraint(Sketcher.Constraint("Vertical", 0, 2, 4, 2))
sketch11.addConstraint(Sketcher.Constraint("Angle", 0, Q("-120 deg")))
sketch11.addConstraint(Sketcher.Constraint("DistanceX", 1, 2, 1, 1, 1.5))
sketch11.addConstraint(Sketcher.Constraint("DistanceX", -1, 1, 2, 2, 8.0))
sketch11.addConstraint(Sketcher.Constraint("DistanceX", -1, 1, 5, 2, 11.0))
sketch11.addConstraint(Sketcher.Constraint("DistanceY", 2, 2, -1, 1, 18.25))
pocket5 = body.newObject("PartDesign::Pocket", "Pocket004")
pocket5.Profile = sketch11
pocket5.Length = 5
pocket5.Reversed = True
doc.recompute()

chamfer5 = body.newObject("PartDesign::Chamfer", "Chamfer004")
chamfer5.Base = (pocket5, edges_at(pocket5, [
    (9.5, -19.549, 0),
    (8.375, -18.9, 0),
    (8.375, -17.6, 0),
    (9.5, -16.951, 0),
    (10.625, -17.6, 0),
    (10.625, -18.9, 0),
]))
chamfer5.Size = 2

# Sketch on YZ plane
sketch12 = body.newObject("Sketcher::SketchObject", "Sketch011")
sketch12.AttachmentSupport = (doc.getObject("YZ_Plane"), [""])
sketch12.MapMode = "FlatFace"
sketch12.AttachmentOffset = App.Placement(Vector(0, 0, -44), App.Rotation())
sketch12.addGeometry(Part.LineSegment(Vector(9, 18, 0), Vector(9, 12, 0)), False)
sketch12.addGeometry(Part.LineSegment(Vector(9, 12, 0), Vector(-3, 12, 0)), False)
sketch12.addGeometry(Part.LineSegment(Vector(-3, 12, 0), Vector(-3, 18, 0)), False)
sketch12.addGeometry(Part.LineSegment(Vector(-3, 18, 0), Vector(9, 18, 0)), False)
sketch12.addConstraint(Sketcher.Constraint("Coincident", 0, 2, 1, 1))
sketch12.addConstraint(Sketcher.Constraint("Coincident", 1, 2, 2, 1))
sketch12.addConstraint(Sketcher.Constraint("Coincident", 2, 2, 3, 1))
sketch12.addConstraint(Sketcher.Constraint("Coincident", 3, 2, 0, 1))
sketch12.addConstraint(Sketcher.Constraint("Vertical", 0))
sketch12.addConstraint(Sketcher.Constraint("Horizontal", 1))
sketch12.addConstraint(Sketcher.Constraint("Vertical", 2))
sketch12.addConstraint(Sketcher.Constraint("Horizontal", 3))
sketch12.addConstraint(Sketcher.Constraint("DistanceX", 1, 2, 1, 1, 12.0))
sketch12.addConstraint(Sketcher.Constraint("DistanceY", 0, 2, 0, 1, 6.0))
sketch12.addConstraint(Sketcher.Constraint("DistanceY", -1, 1, 0, 2, 12.0))
sketch12.addConstraint(Sketcher.Constraint("DistanceX", -1, 1, 0, 2, 9.345692))
pocket6 = body.newObject("PartDesign::Pocket", "Pocket005")
pocket6.Profile = sketch12
pocket6.Length = 5
pocket6.Reversed = True
doc.recompute()

chamfer6 = body.newObject("PartDesign::Chamfer", "Chamfer005")
chamfer6.Base = (pocket6, edges_at(pocket6, [(-44, 3.346, 12)]))
chamfer6.ChamferType = "Distance and Angle"
chamfer6.Size = 2
chamfer6.Angle = 60

# Sketch on XY plane
sketch13 = body.newObject("Sketcher::SketchObject", "Sketch012")
sketch13.AttachmentSupport = (doc.getObject("XY_Plane"), [""])
sketch13.MapMode = "FlatFace"
sketch13.addGeometry(Part.LineSegment(Vector(44, -24, 0), Vector(38, -24, 0)), False)
sketch13.addGeometry(Part.LineSegment(Vector(38, -24, 0), Vector(44, -18, 0)), False)
sketch13.addGeometry(Part.LineSegment(Vector(44, -18, 0), Vector(44, -24, 0)), False)
sketch13.addConstraint(Sketcher.Constraint("Coincident", 0, 2, 1, 1))
sketch13.addConstraint(Sketcher.Constraint("Coincident", 1, 2, 2, 1))
sketch13.addConstraint(Sketcher.Constraint("Coincident", 2, 2, 0, 1))
sketch13.addConstraint(Sketcher.Constraint("Horizontal", 0))
sketch13.addConstraint(Sketcher.Constraint("Vertical", 2))
sketch13.addConstraint(Sketcher.Constraint("Equal", 0, 2))
sketch13.addConstraint(Sketcher.Constraint("DistanceX", 0, 2, 0, 1, 6.0))
sketch13.addConstraint(Sketcher.Constraint("DistanceX", -1, 1, 0, 2, 38.0))
sketch13.addConstraint(Sketcher.Constraint("DistanceY", 0, 2, -1, 1, 24.0))
pocket7 = body.newObject("PartDesign::Pocket", "Pocket006")
pocket7.Profile = sketch13
pocket7.Type = "ThroughAll"
pocket7.Reversed = True

# Sketch on XY plane
sketch14 = body.newObject("Sketcher::SketchObject", "Sketch013")
sketch14.AttachmentSupport = (doc.getObject("XY_Plane"), [""])
sketch14.MapMode = "FlatFace"
sketch14.addGeometry(Part.LineSegment(Vector(-44, -24, 0), Vector(-38, -24, 0)), False)
sketch14.addGeometry(Part.LineSegment(Vector(-38, -24, 0), Vector(-44, -18, 0)), False)
sketch14.addGeometry(Part.LineSegment(Vector(-44, -18, 0), Vector(-44, -24, 0)), False)
sketch14.addConstraint(Sketcher.Constraint("Coincident", 0, 2, 1, 1))
sketch14.addConstraint(Sketcher.Constraint("Coincident", 1, 2, 2, 1))
sketch14.addConstraint(Sketcher.Constraint("Coincident", 2, 2, 0, 1))
sketch14.addConstraint(Sketcher.Constraint("Horizontal", 0))
sketch14.addConstraint(Sketcher.Constraint("Vertical", 2))
sketch14.addConstraint(Sketcher.Constraint("Equal", 0, 2))
sketch14.addConstraint(Sketcher.Constraint("DistanceX", 0, 1, 0, 2, 6.0))
sketch14.addConstraint(Sketcher.Constraint("DistanceX", 0, 2, -1, 1, 38.0))
sketch14.addConstraint(Sketcher.Constraint("DistanceY", 0, 2, -1, 1, 24.0))
pocket8 = body.newObject("PartDesign::Pocket", "Pocket007")
pocket8.Profile = sketch14
pocket8.Type = "ThroughAll"
pocket8.Reversed = True
doc.recompute()

mirrored4 = body.newObject("PartDesign::Mirrored", "Mirrored003")
mirrored4.Originals = [pocket7, pocket8]
mirrored4.MirrorPlane = (doc.getObject("XZ_Plane"), [""])
body.Tip = mirrored4

# Sketch on XY plane
sketch15 = body.newObject("Sketcher::SketchObject", "Sketch014")
sketch15.AttachmentSupport = (doc.getObject("XY_Plane"), [""])
sketch15.MapMode = "FlatFace"
sketch15.AttachmentOffset = App.Placement(Vector(0, 0, 16), App.Rotation())
sketch15.addGeometry(Part.LineSegment(Vector(-40.5, -17, 0), Vector(-40.5, -20.5, 0)), False)
sketch15.addGeometry(Part.LineSegment(Vector(-40.5, -20.5, 0), Vector(-37, -20.5, 0)), False)
sketch15.addGeometry(Part.LineSegment(Vector(-37, -20.5, 0), Vector(-40.5, -17, 0)), False)
sketch15.addConstraint(Sketcher.Constraint("Coincident", 0, 2, 1, 1))
sketch15.addConstraint(Sketcher.Constraint("Coincident", 1, 2, 2, 1))
sketch15.addConstraint(Sketcher.Constraint("Coincident", 2, 2, 0, 1))
sketch15.addConstraint(Sketcher.Constraint("Vertical", 0))
sketch15.addConstraint(Sketcher.Constraint("Horizontal", 1))
sketch15.addConstraint(Sketcher.Constraint("Equal", 1, 0))
sketch15.addConstraint(Sketcher.Constraint("DistanceX", 1, 1, 1, 2, 3.5))
sketch15.addConstraint(Sketcher.Constraint("DistanceX", 1, 2, -1, 1, 37.0))
sketch15.addConstraint(Sketcher.Constraint("DistanceY", 2, 2, -1, 1, 17.0))
pad7 = body.newObject("PartDesign::Pad", "Pad006")
pad7.Profile = sketch15
pad7.Length = 2

# Sketch on XY plane
sketch16 = body.newObject("Sketcher::SketchObject", "Sketch015")
sketch16.AttachmentSupport = (doc.getObject("XY_Plane"), [""])
sketch16.MapMode = "FlatFace"
sketch16.AttachmentOffset = App.Placement(Vector(0, 0, 16), App.Rotation())
sketch16.addGeometry(Part.LineSegment(Vector(40.5, -17, 0), Vector(40.5, -20.5, 0)), False)
sketch16.addGeometry(Part.LineSegment(Vector(40.5, -20.5, 0), Vector(37, -20.5, 0)), False)
sketch16.addGeometry(Part.LineSegment(Vector(37, -20.5, 0), Vector(40.5, -17, 0)), False)
sketch16.addConstraint(Sketcher.Constraint("Coincident", 0, 2, 1, 1))
sketch16.addConstraint(Sketcher.Constraint("Coincident", 1, 2, 2, 1))
sketch16.addConstraint(Sketcher.Constraint("Coincident", 2, 2, 0, 1))
sketch16.addConstraint(Sketcher.Constraint("Vertical", 0))
sketch16.addConstraint(Sketcher.Constraint("Horizontal", 1))
sketch16.addConstraint(Sketcher.Constraint("Equal", 1, 0))
sketch16.addConstraint(Sketcher.Constraint("DistanceX", 1, 2, 1, 1, 3.5))
sketch16.addConstraint(Sketcher.Constraint("DistanceX", -1, 1, 1, 2, 37.0))
sketch16.addConstraint(Sketcher.Constraint("DistanceY", 2, 2, -1, 1, 17.0))
pad8 = body.newObject("PartDesign::Pad", "Pad007")
pad8.Profile = sketch16
pad8.Length = 2
doc.recompute()

mirrored5 = body.newObject("PartDesign::Mirrored", "Mirrored004")
mirrored5.Originals = [pad7, pad8]
mirrored5.MirrorPlane = (doc.getObject("XZ_Plane"), [""])
body.Tip = mirrored5
body2 = doc.addObject("PartDesign::Body", "Body001")
doc.recompute()

body.Placement = App.Placement(Vector(0, 0, 19.4), App.Rotation(Vector(1, 0, 0), 180))
boolean = body2.newObject("PartDesign::Boolean", "Boolean")
boolean.Type = "Fuse"
boolean.addObjects([body])

doc.recompute()
